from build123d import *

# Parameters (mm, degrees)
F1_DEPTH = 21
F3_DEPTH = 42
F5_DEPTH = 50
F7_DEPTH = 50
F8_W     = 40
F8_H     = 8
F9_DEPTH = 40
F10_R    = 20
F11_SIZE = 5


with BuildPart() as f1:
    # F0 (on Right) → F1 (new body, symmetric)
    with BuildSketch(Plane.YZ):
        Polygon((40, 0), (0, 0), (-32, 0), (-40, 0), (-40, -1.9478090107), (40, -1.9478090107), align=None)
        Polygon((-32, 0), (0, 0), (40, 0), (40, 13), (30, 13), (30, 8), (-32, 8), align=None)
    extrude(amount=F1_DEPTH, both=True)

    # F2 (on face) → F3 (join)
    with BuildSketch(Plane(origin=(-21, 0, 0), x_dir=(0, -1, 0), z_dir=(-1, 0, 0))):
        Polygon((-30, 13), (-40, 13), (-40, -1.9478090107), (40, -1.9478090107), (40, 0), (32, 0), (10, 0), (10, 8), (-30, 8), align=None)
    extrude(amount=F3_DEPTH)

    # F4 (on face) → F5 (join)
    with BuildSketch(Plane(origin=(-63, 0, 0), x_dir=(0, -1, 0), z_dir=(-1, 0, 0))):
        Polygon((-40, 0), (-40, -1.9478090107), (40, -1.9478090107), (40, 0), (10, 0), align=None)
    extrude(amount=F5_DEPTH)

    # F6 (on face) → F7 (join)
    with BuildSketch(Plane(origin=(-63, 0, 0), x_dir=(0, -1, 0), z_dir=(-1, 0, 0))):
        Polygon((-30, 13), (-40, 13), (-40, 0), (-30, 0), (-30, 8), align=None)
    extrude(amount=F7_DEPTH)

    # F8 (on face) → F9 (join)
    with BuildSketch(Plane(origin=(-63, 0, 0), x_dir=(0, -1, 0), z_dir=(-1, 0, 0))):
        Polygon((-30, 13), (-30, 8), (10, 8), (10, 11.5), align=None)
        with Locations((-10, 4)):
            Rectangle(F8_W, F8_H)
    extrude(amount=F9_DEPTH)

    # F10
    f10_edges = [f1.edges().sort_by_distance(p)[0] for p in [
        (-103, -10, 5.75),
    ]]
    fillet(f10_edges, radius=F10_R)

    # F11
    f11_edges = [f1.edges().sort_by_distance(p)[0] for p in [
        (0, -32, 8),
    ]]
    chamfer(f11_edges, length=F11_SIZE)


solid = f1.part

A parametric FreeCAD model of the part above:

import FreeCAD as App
import Part
import Sketcher
Q = App.Units.Quantity


def edges_at(feature, points):
    """Names of the edges that pass closest to the given points."""
    edges = feature.Shape.Edges
    near = lambda p: min(range(len(edges)), key=lambda i: edges[i].distToShape(Part.Vertex(*p))[0])
    return sorted({f"Edge{near(p) + 1}" for p in points})

doc = App.newDocument("Part")
body = doc.addObject("PartDesign::Body", "Body")

sketch1 = body.newObject("Sketcher::SketchObject", "Sketch")
sketch1.AttachmentSupport = (doc.getObject("YZ_Plane"), [""])
sketch1.MapMode = "FlatFace"
sketch1.addGeometry([
    Part.LineSegment(App.Vector(-32, 0, 0), App.Vector(-40, 0, 0)),
    Part.LineSegment(App.Vector(-40, 0, 0), App.Vector(-40, -1.9, 0)),
    Part.LineSegment(App.Vector(-40, -1.9, 0), App.Vector(40, -1.9, 0)),
    Part.LineSegment(App.Vector(40, -1.9, 0), App.Vector(40, 13, 0)),
    Part.LineSegment(App.Vector(40, 13, 0), App.Vector(30, 13, 0)),
    Part.LineSegment(App.Vector(30, 13, 0), App.Vector(30, 8, 0)),
    Part.LineSegment(App.Vector(30, 8, 0), App.Vector(-32, 8, 0)),
    Part.LineSegment(App.Vector(-32, 8, 0), App.Vector(-32, 0, 0)),
], False)
sketch1.addConstraint([
    Sketcher.Constraint("Coincident", 0, 2, 1, 1),
    Sketcher.Constraint("Coincident", 1, 2, 2, 1),
    Sketcher.Constraint("Coincident", 2, 2, 3, 1),
    Sketcher.Constraint("Coincident", 3, 2, 4, 1),
    Sketcher.Constraint("Coincident", 4, 2, 5, 1),
    Sketcher.Constraint("Coincident", 5, 2, 6, 1),
    Sketcher.Constraint("Coincident", 6, 2, 7, 1),
    Sketcher.Constraint("Coincident", 7, 2, 0, 1),
    Sketcher.Constraint("Horizontal", 0),
    Sketcher.Constraint("Vertical", 1),
    Sketcher.Constraint("Horizontal", 2),
    Sketcher.Constraint("Vertical", 3),
    Sketcher.Constraint("Horizontal", 4),
    Sketcher.Constraint("Vertical", 5),
    Sketcher.Constraint("Horizontal", 6),
    Sketcher.Constraint("Vertical", 7),
    Sketcher.Constraint("PointOnObject", 0, 2, -1),
    Sketcher.Constraint("Equal", 0, 7),
    Sketcher.Constraint("DistanceX", 0, 2, 0, 1, Q("8 mm")),
    Sketcher.Constraint("DistanceX", 2, 1, 2, 2, Q("80 mm")),
    Sketcher.Constraint("DistanceX", 4, 2, 4, 1, Q("10 mm")),
    Sketcher.Constraint("DistanceY", 5, 2, 5, 1, Q("5 mm")),
    Sketcher.Constraint("DistanceX", 0, 2, -1, 1, Q("40 mm")),
    Sketcher.Constraint("DistanceY", 1, 2, 1, 1, Q("1.947809 mm")),
])
pad1 = body.newObject("PartDesign::Pad", "Pad")
pad1.Profile = sketch1
pad1.Length = 42
pad1.Midplane = True

sketch2 = body.newObject("Sketcher::SketchObject", "Sketch001")
sketch2.AttachmentSupport = (doc.getObject("YZ_Plane"), [""])
sketch2.MapMode = "FlatFace"
sketch2.AttachmentOffset = App.Placement(App.Vector(0, 0, -21), App.Rotation())
sketch2.addGeometry([
    Part.LineSegment(App.Vector(30, 13, 0), App.Vector(40, 13, 0)),
    Part.LineSegment(App.Vector(40, 13, 0), App.Vector(40, -1.9, 0)),
    Part.LineSegment(App.Vector(40, -1.9, 0), App.Vector(-40, -1.9, 0)),
    Part.LineSegment(App.Vector(-40, -1.9, 0), App.Vector(-40, 0, 0)),
    Part.LineSegment(App.Vector(-40, 0, 0), App.Vector(-10, 0, 0)),
    Part.LineSegment(App.Vector(-10, 0, 0), App.Vector(-10, 8, 0)),
    Part.LineSegment(App.Vector(-10, 8, 0), App.Vector(30, 8, 0)),
    Part.LineSegment(App.Vector(30, 8, 0), App.Vector(30, 13, 0)),
], False)
sketch2.addConstraint([
    Sketcher.Constraint("Coincident", 0, 2, 1, 1),
    Sketcher.Constraint("Coincident", 1, 2, 2, 1),
    Sketcher.Constraint("Coincident", 2, 2, 3, 1),
    Sketcher.Constraint("Coincident", 3, 2, 4, 1),
    Sketcher.Constraint("Coincident", 4, 2, 5, 1),
    Sketcher.Constraint("Coincident", 5, 2, 6, 1),
    Sketcher.Constraint("Coincident", 6, 2, 7, 1),
    Sketcher.Constraint("Coincident", 7, 2, 0, 1),
    Sketcher.Constraint("Horizontal", 0),
    Sketcher.Constraint("Vertical", 1),
    Sketcher.Constraint("Horizontal", 2),
    Sketcher.Constraint("Vertical", 3),
    Sketcher.Constraint("Horizontal", 4),
    Sketcher.Constraint("Vertical", 5),
    Sketcher.Constraint("Horizontal", 6),
    Sketcher.Constraint("Vertical", 7),
    Sketcher.Constraint("PointOnObject", 3, 2, -1),
    Sketcher.Constraint("DistanceX", 0, 1, 0, 2, Q("10 mm")),
    Sketcher.Constraint("DistanceX", 2, 2, 2, 1, Q("80 mm")),
    Sketcher.Constraint("DistanceX", 4, 1, 4, 2, Q("30 mm")),
    Sketcher.Constraint("DistanceY", 5, 1, 5, 2, Q("8 mm")),
    Sketcher.Constraint("DistanceY", 7, 1, 7, 2, Q("5 mm")),
    Sketcher.Constraint("DistanceX", -1, 1, 0, 2, Q("40 mm")),
    Sketcher.Constraint("DistanceY", 1, 2, 1, 1, Q("14.947809 mm")),
])
pad2 = body.newObject("PartDesign::Pad", "Pad001")
pad2.Profile = sketch2
pad2.Length = 42
pad2.Reversed = True

sketch3 = body.newObject("Sketcher::SketchObject", "Sketch002")
sketch3.AttachmentSupport = (doc.getObject("YZ_Plane"), [""])
sketch3.MapMode = "FlatFace"
sketch3.AttachmentOffset = App.Placement(App.Vector(0, 0, -63), App.Rotation())
sketch3.addGeometry([
    Part.LineSegment(App.Vector(40, 0, 0), App.Vector(40, -1.9, 0)),
    Part.LineSegment(App.Vector(40, -1.9, 0), App.Vector(-40, -1.9, 0)),
    Part.LineSegment(App.Vector(-40, -1.9, 0), App.Vector(-40, 0, 0)),
    Part.LineSegment(App.Vector(-40, 0, 0), App.Vector(40, 0, 0)),
], False)
sketch3.addConstraint([
    Sketcher.Constraint("Coincident", 0, 2, 1, 1),
    Sketcher.Constraint("Coincident", 1, 2, 2, 1),
    Sketcher.Constraint("Coincident", 2, 2, 3, 1),
    Sketcher.Constraint("Coincident", 3, 2, 0, 1),
    Sketcher.Constraint("Vertical", 0),
    Sketcher.Constraint("Horizontal", 1),
    Sketcher.Constraint("Vertical", 2),
    Sketcher.Constraint("Horizontal", 3),
    Sketcher.Constraint("Symmetric", 2, 2, 3, 2, -1, 1),
    Sketcher.Constraint("DistanceX", 1, 2, 1, 1, Q("80 mm")),
    Sketcher.Constraint("DistanceY", 0, 2, 0, 1, Q("1.947809 mm")),
])
pad3 = body.newObject("PartDesign::Pad", "Pad002")
pad3.Profile = sketch3
pad3.Length = 50
pad3.Reversed = True

sketch4 = body.newObject("Sketcher::SketchObject", "Sketch003")
sketch4.AttachmentSupport = (doc.getObject("YZ_Plane"), [""])
sketch4.MapMode = "FlatFace"
sketch4.AttachmentOffset = App.Placement(App.Vector(0, 0, -63), App.Rotation())
sketch4.addGeometry([
    Part.LineSegment(App.Vector(30, 13, 0), App.Vector(40, 13, 0)),
    Part.LineSegment(App.Vector(40, 13, 0), App.Vector(40, 0, 0)),
    Part.LineSegment(App.Vector(40, 0, 0), App.Vector(30, 0, 0)),
    Part.LineSegment(App.Vector(30, 0, 0), App.Vector(30, 13, 0)),
], False)
sketch4.addConstraint([
    Sketcher.Constraint("Coincident", 0, 2, 1, 1),
    Sketcher.Constraint("Coincident", 1, 2, 2, 1),
    Sketcher.Constraint("Coincident", 2, 2, 3, 1),
    Sketcher.Constraint("Coincident", 3, 2, 0, 1),
    Sketcher.Constraint("Horizontal", 0),
    Sketcher.Constraint("Vertical", 1),
    Sketcher.Constraint("Horizontal", 2),
    Sketcher.Constraint("Vertical", 3),
    Sketcher.Constraint("PointOnObject", 1, 2, -1),
    Sketcher.Constraint("DistanceX", 0, 1, 0, 2, Q("10 mm")),
    Sketcher.Constraint("DistanceY", 1, 2, 1, 1, Q("13 mm")),
    Sketcher.Constraint("DistanceX", -1, 1, 0, 2, Q("40 mm")),
])
pad4 = body.newObject("PartDesign::Pad", "Pad003")
pad4.Profile = sketch4
pad4.Length = 50
pad4.Reversed = True

sketch5 = body.newObject("Sketcher::SketchObject", "Sketch004")
sketch5.AttachmentSupport = (doc.getObject("YZ_Plane"), [""])
sketch5.MapMode = "FlatFace"
sketch5.AttachmentOffset = App.Placement(App.Vector(0, 0, -63), App.Rotation())
sketch5.addGeometry([
    Part.LineSegment(App.Vector(30, 13, 0), App.Vector(30, 0, 0)),
    Part.LineSegment(App.Vector(30, 0, 0), App.Vector(-10, 0, 0)),
    Part.LineSegment(App.Vector(-10, 0, 0), App.Vector(-10, 12, 0)),
    Part.LineSegment(App.Vector(-10, 12, 0), App.Vector(30, 13, 0)),
], False)
sketch5.addConstraint([
    Sketcher.Constraint("Coincident", 0, 2, 1, 1),
    Sketcher.Constraint("Coincident", 1, 2, 2, 1),
    Sketcher.Constraint("Coincident", 2, 2, 3, 1),
    Sketcher.Constraint("Coincident", 3, 2, 0, 1),
    Sketcher.Constraint("Vertical", 0),
    Sketcher.Constraint("Horizontal", 1),
    Sketcher.Constraint("Vertical", 2),
    Sketcher.Constraint("PointOnObject", 0, 2, -1),
    Sketcher.Constraint("DistanceX", 1, 2, 1, 1, Q("40 mm")),
    Sketcher.Constraint("DistanceY", 0, 2, 0, 1, Q("13 mm")),
    Sketcher.Constraint("DistanceY", 2, 1, 2, 2, Q("11.5 mm")),
    Sketcher.Constraint("DistanceX", -1, 1, 0, 2, Q("30 mm")),
])
pad5 = body.newObject("PartDesign::Pad", "Pad004")
pad5.Profile = sketch5
pad5.Length = 40
pad5.Reversed = True
doc.recompute()

fillet = body.newObject("PartDesign::Fillet", "Fillet")
fillet.Base = (pad5, edges_at(pad5, [(-103, -10, 5.75)]))
fillet.Radius = 20
doc.recompute()

chamfer = body.newObject("PartDesign::Chamfer", "Chamfer")
chamfer.Base = (fillet, edges_at(fillet, [(0, -32, 8)]))
chamfer.Size = 5

doc.recompute()
